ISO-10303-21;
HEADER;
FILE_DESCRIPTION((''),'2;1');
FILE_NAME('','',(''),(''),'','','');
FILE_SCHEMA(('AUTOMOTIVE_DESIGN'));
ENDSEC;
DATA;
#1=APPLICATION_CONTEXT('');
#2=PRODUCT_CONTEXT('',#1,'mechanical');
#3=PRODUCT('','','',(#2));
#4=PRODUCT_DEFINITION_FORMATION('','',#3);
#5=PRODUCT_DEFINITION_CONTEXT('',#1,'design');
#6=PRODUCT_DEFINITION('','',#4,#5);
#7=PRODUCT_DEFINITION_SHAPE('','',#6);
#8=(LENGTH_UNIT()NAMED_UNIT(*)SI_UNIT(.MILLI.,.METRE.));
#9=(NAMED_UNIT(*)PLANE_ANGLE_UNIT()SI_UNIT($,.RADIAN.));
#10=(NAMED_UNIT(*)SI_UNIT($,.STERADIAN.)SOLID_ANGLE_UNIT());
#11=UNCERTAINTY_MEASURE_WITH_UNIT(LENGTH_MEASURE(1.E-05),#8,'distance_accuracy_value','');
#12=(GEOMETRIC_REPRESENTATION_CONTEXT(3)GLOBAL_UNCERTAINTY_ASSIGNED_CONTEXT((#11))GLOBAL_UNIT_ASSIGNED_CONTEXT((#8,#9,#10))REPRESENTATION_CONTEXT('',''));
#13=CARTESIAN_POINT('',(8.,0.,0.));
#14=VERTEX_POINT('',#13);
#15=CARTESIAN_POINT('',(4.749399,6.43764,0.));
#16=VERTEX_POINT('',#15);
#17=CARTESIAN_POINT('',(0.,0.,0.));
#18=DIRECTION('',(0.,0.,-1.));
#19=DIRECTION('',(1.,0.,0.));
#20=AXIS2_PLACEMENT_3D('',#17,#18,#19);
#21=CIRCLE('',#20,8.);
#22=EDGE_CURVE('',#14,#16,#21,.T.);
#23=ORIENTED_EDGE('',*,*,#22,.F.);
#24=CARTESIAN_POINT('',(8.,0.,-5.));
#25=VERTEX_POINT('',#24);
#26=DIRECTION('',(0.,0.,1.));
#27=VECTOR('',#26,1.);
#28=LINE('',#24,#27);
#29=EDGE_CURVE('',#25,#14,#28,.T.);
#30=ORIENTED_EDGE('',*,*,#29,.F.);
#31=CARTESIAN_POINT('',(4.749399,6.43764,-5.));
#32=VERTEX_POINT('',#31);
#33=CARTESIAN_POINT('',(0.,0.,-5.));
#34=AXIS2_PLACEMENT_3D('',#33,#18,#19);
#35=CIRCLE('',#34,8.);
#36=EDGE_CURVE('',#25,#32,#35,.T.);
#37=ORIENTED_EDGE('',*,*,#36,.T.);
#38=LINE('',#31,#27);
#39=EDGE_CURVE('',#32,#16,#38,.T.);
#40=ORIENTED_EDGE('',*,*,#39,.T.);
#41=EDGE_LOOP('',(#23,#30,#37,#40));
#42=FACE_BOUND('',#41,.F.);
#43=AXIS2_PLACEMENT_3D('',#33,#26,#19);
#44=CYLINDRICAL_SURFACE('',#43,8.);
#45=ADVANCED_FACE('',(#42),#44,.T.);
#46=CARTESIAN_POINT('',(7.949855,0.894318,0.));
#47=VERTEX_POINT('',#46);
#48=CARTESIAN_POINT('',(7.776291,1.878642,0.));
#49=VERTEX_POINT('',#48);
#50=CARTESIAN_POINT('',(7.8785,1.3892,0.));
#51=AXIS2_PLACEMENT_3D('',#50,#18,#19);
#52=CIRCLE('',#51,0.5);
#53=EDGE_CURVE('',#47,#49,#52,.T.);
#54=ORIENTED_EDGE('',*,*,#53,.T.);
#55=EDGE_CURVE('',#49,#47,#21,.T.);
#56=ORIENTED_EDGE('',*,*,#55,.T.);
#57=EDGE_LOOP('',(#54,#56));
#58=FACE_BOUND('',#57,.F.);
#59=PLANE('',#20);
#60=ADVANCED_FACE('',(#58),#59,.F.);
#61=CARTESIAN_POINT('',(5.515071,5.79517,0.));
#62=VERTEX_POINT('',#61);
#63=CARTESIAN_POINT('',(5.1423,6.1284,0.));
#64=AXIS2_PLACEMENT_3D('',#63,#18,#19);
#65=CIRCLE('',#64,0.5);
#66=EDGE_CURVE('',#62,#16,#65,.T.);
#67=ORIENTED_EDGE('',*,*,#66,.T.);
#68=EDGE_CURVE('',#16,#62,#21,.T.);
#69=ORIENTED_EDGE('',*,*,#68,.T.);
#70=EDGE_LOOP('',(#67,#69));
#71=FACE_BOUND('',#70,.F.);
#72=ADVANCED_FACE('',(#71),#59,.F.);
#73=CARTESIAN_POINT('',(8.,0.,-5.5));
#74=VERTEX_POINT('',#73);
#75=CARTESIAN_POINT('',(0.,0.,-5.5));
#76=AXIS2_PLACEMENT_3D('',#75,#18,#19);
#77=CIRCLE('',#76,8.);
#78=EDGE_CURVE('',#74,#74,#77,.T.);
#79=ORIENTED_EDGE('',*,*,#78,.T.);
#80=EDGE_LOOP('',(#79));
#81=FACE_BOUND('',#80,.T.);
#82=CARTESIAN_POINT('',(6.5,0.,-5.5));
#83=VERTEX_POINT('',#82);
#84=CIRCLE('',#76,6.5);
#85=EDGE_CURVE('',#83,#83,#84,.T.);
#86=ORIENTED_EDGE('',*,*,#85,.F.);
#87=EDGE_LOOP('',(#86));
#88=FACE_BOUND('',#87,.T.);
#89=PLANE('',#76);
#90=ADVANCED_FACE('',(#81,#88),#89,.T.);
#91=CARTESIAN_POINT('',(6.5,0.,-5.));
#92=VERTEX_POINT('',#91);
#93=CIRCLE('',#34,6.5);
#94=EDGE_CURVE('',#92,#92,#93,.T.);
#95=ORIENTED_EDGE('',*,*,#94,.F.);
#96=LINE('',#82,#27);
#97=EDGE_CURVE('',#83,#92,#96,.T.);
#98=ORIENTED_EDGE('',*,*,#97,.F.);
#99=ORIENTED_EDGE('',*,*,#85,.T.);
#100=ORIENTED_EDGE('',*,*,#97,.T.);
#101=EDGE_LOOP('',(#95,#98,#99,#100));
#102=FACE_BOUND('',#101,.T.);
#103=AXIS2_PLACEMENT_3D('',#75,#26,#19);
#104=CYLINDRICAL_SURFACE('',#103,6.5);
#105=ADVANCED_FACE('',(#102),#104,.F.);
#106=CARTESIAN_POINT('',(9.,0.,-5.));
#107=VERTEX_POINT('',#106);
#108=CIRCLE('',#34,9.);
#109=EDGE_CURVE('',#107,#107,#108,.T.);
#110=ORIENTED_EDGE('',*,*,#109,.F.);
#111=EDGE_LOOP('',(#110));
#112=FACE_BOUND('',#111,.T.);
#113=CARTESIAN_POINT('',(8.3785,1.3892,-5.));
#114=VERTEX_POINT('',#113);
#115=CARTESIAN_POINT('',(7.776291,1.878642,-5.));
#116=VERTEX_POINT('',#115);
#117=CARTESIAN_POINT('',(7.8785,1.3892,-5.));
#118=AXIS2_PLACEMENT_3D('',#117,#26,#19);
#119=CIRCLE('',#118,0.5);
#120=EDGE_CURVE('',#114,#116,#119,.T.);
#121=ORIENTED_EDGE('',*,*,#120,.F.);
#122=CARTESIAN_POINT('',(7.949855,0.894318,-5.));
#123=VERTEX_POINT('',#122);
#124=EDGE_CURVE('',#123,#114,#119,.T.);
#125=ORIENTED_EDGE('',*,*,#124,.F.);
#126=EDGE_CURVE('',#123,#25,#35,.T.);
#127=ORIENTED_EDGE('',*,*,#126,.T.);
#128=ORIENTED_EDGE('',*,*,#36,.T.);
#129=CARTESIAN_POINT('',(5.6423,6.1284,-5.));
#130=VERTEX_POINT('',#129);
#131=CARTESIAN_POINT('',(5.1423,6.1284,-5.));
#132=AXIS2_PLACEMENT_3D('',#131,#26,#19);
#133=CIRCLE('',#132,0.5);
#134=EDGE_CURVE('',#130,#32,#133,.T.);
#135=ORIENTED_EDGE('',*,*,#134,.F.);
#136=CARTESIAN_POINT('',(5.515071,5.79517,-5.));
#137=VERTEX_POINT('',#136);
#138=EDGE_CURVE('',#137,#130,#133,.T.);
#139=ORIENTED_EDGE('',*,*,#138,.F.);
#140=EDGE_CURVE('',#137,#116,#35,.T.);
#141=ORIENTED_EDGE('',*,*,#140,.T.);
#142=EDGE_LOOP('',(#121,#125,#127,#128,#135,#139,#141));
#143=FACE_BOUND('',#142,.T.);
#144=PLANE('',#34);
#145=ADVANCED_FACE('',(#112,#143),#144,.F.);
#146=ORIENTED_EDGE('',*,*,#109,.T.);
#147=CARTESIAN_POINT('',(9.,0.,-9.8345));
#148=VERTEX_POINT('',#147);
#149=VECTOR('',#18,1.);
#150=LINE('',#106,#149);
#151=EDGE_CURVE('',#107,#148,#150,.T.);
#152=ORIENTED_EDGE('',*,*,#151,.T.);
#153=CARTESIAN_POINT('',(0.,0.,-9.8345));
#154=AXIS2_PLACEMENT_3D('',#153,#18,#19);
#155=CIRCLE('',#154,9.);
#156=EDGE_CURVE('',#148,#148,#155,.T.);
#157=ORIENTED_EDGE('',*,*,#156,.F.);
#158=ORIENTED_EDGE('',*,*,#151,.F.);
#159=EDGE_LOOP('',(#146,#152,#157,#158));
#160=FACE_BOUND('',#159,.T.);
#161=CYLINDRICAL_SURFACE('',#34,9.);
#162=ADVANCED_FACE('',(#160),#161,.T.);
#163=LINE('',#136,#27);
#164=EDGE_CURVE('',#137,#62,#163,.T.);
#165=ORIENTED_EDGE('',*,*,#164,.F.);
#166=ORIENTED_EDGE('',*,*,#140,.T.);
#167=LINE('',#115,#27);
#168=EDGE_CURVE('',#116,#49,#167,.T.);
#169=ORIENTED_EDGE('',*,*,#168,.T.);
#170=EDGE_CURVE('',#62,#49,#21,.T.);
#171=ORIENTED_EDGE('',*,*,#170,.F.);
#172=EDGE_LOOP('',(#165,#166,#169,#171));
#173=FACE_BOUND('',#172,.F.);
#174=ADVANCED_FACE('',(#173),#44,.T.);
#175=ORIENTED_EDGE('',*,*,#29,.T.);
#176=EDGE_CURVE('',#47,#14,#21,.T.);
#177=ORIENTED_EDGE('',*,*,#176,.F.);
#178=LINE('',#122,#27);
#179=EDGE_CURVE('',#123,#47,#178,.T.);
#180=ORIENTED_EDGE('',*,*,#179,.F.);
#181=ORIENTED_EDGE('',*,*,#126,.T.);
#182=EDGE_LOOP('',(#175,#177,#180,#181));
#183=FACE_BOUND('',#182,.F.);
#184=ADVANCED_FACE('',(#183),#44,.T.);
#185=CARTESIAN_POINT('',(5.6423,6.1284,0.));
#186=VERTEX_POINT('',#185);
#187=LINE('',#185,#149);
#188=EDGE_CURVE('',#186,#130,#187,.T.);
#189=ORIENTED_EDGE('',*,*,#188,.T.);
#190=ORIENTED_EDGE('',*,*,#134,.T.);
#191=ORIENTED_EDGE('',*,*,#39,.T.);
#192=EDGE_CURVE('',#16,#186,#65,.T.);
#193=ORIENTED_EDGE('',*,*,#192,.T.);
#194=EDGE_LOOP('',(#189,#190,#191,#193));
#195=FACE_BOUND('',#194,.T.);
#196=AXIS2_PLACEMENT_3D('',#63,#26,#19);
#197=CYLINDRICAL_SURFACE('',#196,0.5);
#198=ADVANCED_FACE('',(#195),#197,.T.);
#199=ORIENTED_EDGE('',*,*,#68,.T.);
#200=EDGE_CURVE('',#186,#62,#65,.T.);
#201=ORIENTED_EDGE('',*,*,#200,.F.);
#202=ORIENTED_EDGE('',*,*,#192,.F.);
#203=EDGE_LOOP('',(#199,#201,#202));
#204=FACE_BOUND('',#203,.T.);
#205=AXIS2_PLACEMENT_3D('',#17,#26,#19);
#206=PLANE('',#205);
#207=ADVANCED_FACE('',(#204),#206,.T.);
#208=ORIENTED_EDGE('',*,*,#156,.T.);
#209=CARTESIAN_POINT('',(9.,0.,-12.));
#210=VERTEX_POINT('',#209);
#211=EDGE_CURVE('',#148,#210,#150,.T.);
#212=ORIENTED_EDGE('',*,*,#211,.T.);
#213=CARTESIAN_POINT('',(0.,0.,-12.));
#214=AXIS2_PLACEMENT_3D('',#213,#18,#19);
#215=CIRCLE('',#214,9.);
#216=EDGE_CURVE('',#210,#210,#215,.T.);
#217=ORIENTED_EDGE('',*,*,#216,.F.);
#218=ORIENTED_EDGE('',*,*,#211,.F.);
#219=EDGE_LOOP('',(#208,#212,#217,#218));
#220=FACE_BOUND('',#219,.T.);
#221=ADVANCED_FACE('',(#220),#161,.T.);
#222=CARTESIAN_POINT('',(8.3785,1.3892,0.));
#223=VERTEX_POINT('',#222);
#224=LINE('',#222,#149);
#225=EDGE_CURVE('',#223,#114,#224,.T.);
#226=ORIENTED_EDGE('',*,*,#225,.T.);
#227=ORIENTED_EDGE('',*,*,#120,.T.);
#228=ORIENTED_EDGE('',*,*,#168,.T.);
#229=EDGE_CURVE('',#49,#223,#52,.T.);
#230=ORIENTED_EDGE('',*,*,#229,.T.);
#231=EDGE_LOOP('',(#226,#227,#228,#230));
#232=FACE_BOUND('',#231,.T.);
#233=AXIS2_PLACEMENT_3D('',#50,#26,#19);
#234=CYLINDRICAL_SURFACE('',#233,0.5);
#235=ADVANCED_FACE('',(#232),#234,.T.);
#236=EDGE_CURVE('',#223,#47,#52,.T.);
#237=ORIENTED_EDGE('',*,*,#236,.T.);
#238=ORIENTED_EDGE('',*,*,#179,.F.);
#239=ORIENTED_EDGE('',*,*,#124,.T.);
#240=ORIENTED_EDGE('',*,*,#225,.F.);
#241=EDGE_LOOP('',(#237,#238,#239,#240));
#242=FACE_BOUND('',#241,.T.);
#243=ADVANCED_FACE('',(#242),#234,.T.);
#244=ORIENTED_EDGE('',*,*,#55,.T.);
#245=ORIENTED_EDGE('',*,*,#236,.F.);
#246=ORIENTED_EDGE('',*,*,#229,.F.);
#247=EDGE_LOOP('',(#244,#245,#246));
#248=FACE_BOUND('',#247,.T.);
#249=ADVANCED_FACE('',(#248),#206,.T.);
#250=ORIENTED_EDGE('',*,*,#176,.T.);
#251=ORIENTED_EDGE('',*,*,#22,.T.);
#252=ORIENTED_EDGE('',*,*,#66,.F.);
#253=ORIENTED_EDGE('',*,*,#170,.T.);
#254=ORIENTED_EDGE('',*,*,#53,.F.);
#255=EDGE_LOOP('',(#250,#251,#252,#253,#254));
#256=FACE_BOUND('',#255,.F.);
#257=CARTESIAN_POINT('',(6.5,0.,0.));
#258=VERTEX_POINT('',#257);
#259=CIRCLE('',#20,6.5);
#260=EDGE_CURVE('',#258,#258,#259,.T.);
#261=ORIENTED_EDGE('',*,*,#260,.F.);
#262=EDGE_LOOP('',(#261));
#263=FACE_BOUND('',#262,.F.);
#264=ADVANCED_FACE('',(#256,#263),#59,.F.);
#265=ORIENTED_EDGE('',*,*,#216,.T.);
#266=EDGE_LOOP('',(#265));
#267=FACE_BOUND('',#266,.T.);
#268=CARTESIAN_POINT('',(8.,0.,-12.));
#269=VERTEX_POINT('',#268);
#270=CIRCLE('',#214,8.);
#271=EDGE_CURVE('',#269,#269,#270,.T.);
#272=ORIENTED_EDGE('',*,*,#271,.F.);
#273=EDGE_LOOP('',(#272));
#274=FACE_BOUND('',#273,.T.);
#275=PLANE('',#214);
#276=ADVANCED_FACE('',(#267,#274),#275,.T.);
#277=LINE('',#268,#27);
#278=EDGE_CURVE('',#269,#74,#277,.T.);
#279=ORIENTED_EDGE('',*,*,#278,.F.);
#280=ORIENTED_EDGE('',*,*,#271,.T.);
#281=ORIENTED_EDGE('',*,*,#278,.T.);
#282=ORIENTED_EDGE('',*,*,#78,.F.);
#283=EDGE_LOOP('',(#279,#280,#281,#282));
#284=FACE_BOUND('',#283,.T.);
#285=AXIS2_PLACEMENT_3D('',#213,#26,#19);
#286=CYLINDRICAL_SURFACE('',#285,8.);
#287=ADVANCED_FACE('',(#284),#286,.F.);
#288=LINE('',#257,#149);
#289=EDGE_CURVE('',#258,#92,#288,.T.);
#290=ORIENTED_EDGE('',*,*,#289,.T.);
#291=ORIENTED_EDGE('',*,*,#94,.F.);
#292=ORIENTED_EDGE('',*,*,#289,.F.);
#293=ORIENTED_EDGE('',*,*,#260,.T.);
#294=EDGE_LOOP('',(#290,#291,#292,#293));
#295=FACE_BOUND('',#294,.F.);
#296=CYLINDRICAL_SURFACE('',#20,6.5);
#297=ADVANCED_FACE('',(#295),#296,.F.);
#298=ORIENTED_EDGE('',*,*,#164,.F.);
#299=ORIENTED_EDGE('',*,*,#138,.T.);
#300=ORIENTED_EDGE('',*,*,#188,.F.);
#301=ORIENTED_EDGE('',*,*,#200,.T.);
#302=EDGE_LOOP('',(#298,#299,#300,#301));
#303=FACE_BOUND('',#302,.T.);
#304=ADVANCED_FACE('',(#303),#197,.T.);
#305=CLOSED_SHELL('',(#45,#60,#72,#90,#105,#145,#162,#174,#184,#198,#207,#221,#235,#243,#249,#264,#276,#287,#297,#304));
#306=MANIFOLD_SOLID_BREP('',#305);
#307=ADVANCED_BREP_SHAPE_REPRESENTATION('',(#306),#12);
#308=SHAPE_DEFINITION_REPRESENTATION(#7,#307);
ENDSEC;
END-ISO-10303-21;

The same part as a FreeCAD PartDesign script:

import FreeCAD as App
import Part
import Sketcher

V = App.Vector
Q = App.Units.Quantity

doc = App.newDocument("Part")
body = doc.addObject("PartDesign::Body", "Body")

# Sketch on XZ plane
sketch1 = body.newObject("Sketcher::SketchObject", "Sketch")
sketch1.AttachmentSupport = (doc.getObject("XZ_Plane"), [""])
sketch1.MapMode = "FlatFace"
sketch1.addGeometry(Part.LineSegment(V(6.5, 0, 0), V(8, 0, 0)), False)
sketch1.addGeometry(Part.LineSegment(V(8, 0, 0), V(8, -5, 0)), False)
sketch1.addGeometry(Part.LineSegment(V(8, -5, 0), V(9, -5, 0)), False)
sketch1.addGeometry(Part.LineSegment(V(9, -5, 0), V(9, -12, 0)), False)
sketch1.addGeometry(Part.LineSegment(V(9, -12, 0), V(8, -12, 0)), False)
sketch1.addGeometry(Part.LineSegment(V(8, -12, 0), V(8, -5.5, 0)), False)
sketch1.addGeometry(Part.LineSegment(V(8, -5.5, 0), V(6.5, -5.5, 0)), False)
sketch1.addGeometry(Part.LineSegment(V(6.5, -5.5, 0), V(6.5, 0, 0)), False)
sketch1.addConstraint(Sketcher.Constraint("Coincident", 0, 2, 1, 1))
sketch1.addConstraint(Sketcher.Constraint("Coincident", 1, 2, 2, 1))
sketch1.addConstraint(Sketcher.Constraint("Coincident", 2, 2, 3, 1))
sketch1.addConstraint(Sketcher.Constraint("Coincident", 3, 2, 4, 1))
sketch1.addConstraint(Sketcher.Constraint("Coincident", 4, 2, 5, 1))
sketch1.addConstraint(Sketcher.Constraint("Coincident", 5, 2, 6, 1))
sketch1.addConstraint(Sketcher.Constraint("Coincident", 6, 2, 7, 1))
sketch1.addConstraint(Sketcher.Constraint("Coincident", 7, 2, 0, 1))
sketch1.addConstraint(Sketcher.Constraint("Horizontal", 0))
sketch1.addConstraint(Sketcher.Constraint("Vertical", 1))
sketch1.addConstraint(Sketcher.Constraint("Horizontal", 2))
sketch1.addConstraint(Sketcher.Constraint("Vertical", 3))
sketch1.addConstraint(Sketcher.Constraint("Horizontal", 4))
sketch1.addConstraint(Sketcher.Constraint("Vertical", 5))
sketch1.addConstraint(Sketcher.Constraint("Horizontal", 6))
sketch1.addConstraint(Sketcher.Constraint("Vertical", 7))
sketch1.addConstraint(Sketcher.Constraint("PointOnObject", 0, 2, -1))
sketch1.addConstraint(Sketcher.Constraint("Vertical", 1, 2, 4, 2))
sketch1.addConstraint(Sketcher.Constraint("DistanceY", 1, 2, 1, 1, Q("5 mm")))
sketch1.addConstraint(Sketcher.Constraint("DistanceY", 3, 2, 3, 1, Q("7 mm")))
sketch1.addConstraint(Sketcher.Constraint("DistanceY", 5, 1, 5, 2, Q("6.5 mm")))
sketch1.addConstraint(Sketcher.Constraint("DistanceX", -1, 1, 6, 2, Q("6.5 mm")))
sketch1.addConstraint(Sketcher.Constraint("DistanceX", 2, 1, 2, 2, Q("1 mm")))
sketch1.addConstraint(Sketcher.Constraint("DistanceX", 0, 1, 0, 2, Q("1.5 mm")))
revolution = body.newObject("PartDesign::Revolution", "Revolution")
revolution.Profile = sketch1
revolution.ReferenceAxis = (sketch1, ["V_Axis"])
revolution.Angle = 360

# Sketch on XY plane
sketch2 = body.newObject("Sketcher::SketchObject", "Sketch001")
sketch2.AttachmentSupport = (doc.getObject("XY_Plane"), [""])
sketch2.MapMode = "FlatFace"
sketch2.addGeometry(Part.Circle(V(7.8785, 1.3892, 0), V(0, 0, 1), 0.5), False)
sketch2.addGeometry(Part.Circle(V(5.1423, 6.1284, 0), V(0, 0, 1), 0.5), False)
sketch2.addConstraint(Sketcher.Constraint("Equal", 0, 1))
sketch2.addConstraint(Sketcher.Constraint("Diameter", 0, Q("1 mm")))
sketch2.addConstraint(Sketcher.Constraint("DistanceX", -1, 1, 0, 3, Q("7.8785 mm")))
sketch2.addConstraint(Sketcher.Constraint("DistanceY", -1, 1, 0, 3, Q("1.3892 mm")))
sketch2.addConstraint(Sketcher.Constraint("DistanceX", -1, 1, 1, 3, Q("5.1423 mm")))
sketch2.addConstraint(Sketcher.Constraint("DistanceY", -1, 1, 1, 3, Q("6.1284 mm")))
pad1 = body.newObject("PartDesign::Pad", "Pad")
pad1.Profile = sketch2
pad1.Length = 5
pad1.Reversed = True

doc.recompute()
